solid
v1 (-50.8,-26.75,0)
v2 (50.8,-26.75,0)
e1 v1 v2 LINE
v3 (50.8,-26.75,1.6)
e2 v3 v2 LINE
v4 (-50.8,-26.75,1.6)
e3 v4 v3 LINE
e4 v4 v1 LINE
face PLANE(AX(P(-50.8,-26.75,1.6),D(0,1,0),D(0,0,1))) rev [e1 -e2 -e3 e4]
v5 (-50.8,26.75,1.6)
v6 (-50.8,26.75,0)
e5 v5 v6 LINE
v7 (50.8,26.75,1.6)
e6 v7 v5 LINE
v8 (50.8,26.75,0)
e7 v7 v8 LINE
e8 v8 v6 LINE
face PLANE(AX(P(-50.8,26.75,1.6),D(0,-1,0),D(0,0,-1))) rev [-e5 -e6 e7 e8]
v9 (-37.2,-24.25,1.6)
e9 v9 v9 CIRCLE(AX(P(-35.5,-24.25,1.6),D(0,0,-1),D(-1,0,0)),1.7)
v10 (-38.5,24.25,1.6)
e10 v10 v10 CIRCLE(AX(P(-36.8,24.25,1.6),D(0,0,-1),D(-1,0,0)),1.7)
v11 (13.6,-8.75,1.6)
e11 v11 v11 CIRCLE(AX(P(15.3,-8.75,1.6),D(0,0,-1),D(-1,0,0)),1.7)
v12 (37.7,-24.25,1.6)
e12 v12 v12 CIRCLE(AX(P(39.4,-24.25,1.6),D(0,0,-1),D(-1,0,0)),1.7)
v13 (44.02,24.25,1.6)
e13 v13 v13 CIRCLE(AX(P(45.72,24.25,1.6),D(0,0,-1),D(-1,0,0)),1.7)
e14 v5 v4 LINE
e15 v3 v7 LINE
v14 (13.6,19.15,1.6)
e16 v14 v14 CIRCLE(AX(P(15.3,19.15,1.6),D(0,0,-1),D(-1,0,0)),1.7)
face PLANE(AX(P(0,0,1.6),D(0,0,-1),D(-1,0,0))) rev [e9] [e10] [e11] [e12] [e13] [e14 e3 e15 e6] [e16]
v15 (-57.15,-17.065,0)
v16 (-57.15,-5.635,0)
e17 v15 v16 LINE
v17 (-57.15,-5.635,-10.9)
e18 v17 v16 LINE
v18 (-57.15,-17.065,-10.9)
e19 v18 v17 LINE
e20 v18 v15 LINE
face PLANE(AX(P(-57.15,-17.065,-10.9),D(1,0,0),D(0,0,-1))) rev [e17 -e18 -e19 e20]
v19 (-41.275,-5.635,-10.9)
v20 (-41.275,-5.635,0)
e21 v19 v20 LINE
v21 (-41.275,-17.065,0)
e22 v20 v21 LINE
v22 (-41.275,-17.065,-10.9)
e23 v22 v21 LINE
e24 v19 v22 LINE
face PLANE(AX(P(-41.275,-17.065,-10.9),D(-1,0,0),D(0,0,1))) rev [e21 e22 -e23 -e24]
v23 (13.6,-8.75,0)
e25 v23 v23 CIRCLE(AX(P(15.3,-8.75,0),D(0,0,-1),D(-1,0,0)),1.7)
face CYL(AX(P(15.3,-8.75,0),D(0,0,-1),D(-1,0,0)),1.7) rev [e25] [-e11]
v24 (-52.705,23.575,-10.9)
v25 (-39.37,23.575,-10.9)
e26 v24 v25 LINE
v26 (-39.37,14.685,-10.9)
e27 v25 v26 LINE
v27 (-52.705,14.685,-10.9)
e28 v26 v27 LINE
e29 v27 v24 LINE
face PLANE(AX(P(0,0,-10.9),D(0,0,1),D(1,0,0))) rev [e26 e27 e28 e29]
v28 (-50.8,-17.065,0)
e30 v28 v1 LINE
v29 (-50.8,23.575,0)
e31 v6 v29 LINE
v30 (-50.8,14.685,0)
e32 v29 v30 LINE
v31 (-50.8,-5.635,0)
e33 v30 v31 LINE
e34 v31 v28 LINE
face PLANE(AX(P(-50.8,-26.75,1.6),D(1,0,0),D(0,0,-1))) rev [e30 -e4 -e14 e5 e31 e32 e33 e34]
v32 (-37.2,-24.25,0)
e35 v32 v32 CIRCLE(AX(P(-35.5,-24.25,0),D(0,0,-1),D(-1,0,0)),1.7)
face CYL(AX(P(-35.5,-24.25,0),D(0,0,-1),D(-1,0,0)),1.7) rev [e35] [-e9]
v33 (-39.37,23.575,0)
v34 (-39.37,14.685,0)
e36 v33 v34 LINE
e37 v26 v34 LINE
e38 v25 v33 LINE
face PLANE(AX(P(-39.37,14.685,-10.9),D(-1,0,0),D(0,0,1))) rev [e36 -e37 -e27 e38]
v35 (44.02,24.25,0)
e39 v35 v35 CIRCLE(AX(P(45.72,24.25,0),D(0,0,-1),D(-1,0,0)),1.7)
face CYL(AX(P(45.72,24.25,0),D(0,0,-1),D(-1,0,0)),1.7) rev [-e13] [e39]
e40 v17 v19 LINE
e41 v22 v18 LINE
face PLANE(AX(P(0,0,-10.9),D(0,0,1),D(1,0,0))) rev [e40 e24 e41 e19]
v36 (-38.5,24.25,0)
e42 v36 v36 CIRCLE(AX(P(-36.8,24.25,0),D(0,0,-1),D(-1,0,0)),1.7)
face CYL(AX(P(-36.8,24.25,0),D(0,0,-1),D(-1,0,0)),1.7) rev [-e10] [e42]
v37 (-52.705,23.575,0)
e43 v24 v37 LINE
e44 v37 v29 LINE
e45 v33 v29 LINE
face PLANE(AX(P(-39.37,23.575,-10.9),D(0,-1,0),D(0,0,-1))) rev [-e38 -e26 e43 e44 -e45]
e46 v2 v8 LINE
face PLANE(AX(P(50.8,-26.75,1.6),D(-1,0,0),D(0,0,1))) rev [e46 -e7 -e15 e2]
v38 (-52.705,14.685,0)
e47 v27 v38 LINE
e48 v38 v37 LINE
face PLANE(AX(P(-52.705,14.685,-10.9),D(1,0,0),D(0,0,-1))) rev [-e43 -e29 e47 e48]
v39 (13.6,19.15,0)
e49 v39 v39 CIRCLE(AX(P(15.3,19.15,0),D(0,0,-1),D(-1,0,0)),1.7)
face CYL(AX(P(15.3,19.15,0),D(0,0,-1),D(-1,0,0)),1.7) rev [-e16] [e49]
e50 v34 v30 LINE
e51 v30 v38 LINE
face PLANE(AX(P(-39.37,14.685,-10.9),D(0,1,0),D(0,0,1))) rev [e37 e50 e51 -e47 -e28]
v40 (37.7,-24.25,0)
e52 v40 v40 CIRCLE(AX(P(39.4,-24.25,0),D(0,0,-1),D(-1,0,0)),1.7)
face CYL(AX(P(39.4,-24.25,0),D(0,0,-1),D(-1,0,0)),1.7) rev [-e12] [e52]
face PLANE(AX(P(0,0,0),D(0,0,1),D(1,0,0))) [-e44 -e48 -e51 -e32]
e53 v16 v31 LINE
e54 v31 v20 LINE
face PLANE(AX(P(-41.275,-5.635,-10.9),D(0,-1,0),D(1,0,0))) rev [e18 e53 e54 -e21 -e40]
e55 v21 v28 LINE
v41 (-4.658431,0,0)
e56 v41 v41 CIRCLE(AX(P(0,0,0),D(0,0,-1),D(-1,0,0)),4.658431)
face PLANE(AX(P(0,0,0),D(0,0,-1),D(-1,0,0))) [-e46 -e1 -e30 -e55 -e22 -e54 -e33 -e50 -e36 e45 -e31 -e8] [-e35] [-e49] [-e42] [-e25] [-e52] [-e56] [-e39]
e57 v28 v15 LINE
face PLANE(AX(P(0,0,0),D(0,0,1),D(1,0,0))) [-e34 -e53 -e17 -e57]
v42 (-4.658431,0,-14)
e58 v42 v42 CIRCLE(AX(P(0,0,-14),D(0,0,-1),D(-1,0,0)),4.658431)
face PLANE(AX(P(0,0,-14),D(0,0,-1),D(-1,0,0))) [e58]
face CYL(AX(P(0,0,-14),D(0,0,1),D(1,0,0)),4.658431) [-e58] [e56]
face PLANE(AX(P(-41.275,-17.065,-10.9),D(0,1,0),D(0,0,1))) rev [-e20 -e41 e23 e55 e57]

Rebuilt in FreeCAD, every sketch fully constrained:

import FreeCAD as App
import Part
import Sketcher

V = App.Vector

doc = App.newDocument("Part")
params = doc.addObject("Spreadsheet::Sheet", "Params")
for row, (alias, value) in enumerate([
    ("sketch1_width", "101.6 mm"),
    ("sketch1_height", "53.5 mm"),
    ("pad1_length", "1.6 mm"),
    ("sketch2_diameter", "3.4 mm"),
    ("hole_diameter", "3.4 mm"),
    ("sketch3_height", "11.43 mm"),
    ("pad2_length", "10.9 mm"),
    ("sketch4_height", "8.89 mm"),
    ("pad3_length", "10.9 mm"),
    ("pad4_length", "14 mm"),
], start=1):
    params.set(f"A{row}", alias)
    params.set(f"B{row}", "=" + value)
    params.setAlias(f"B{row}", alias)

body = doc.addObject("PartDesign::Body", "Body")

sketch1 = body.newObject("Sketcher::SketchObject", "Sketch")
sketch1.AttachmentSupport = (doc.getObject("XY_Plane"), [""])
sketch1.MapMode = "FlatFace"
sketch1.addGeometry(Part.LineSegment(V(-51, 27, 0), V(-51, -27, 0)), False)
sketch1.addGeometry(Part.LineSegment(V(-51, -27, 0), V(51, -27, 0)), False)
sketch1.addGeometry(Part.LineSegment(V(51, -27, 0), V(51, 27, 0)), False)
sketch1.addGeometry(Part.LineSegment(V(51, 27, 0), V(-51, 27, 0)), False)
sketch1.addConstraint(Sketcher.Constraint("Coincident", 0, 2, 1, 1))
sketch1.addConstraint(Sketcher.Constraint("Coincident", 1, 2, 2, 1))
sketch1.addConstraint(Sketcher.Constraint("Coincident", 2, 2, 3, 1))
sketch1.addConstraint(Sketcher.Constraint("Coincident", 3, 2, 0, 1))
sketch1.addConstraint(Sketcher.Constraint("Vertical", 0))
sketch1.addConstraint(Sketcher.Constraint("Horizontal", 1))
sketch1.addConstraint(Sketcher.Constraint("Vertical", 2))
sketch1.addConstraint(Sketcher.Constraint("Horizontal", 3))
sketch1.addConstraint(Sketcher.Constraint("Symmetric", 0, 2, 2, 2, -1, 1))
sketch1.addConstraint(Sketcher.Constraint("DistanceX", 1, 1, 1, 2, 101.6))
sketch1.addConstraint(Sketcher.Constraint("DistanceY", 0, 2, 0, 1, 53.5))
sketch1.setExpression("Constraints[9]", "Params.sketch1_width")
sketch1.setExpression("Constraints[10]", "Params.sketch1_height")
pad1 = body.newObject("PartDesign::Pad", "Pad")
pad1.Profile = sketch1
pad1.setExpression("Length", "Params.pad1_length")

sketch2 = body.newObject("Sketcher::SketchObject", "Sketch001")
sketch2.AttachmentSupport = (doc.getObject("XY_Plane"), [""])
sketch2.MapMode = "FlatFace"
sketch2.addGeometry(Part.Circle(V(15.3, 19.1, 0), V(0, 0, 1), 1.7), False)
sketch2.addGeometry(Part.Circle(V(45.7, 24.2, 0), V(0, 0, 1), 1.7), False)
sketch2.addGeometry(Part.Circle(V(15.3, -8.8, 0), V(0, 0, 1), 1.7), False)
sketch2.addGeometry(Part.Circle(V(39.4, -24.2, 0), V(0, 0, 1), 1.7), False)
sketch2.addGeometry(Part.Circle(V(-35.5, -24.2, 0), V(0, 0, 1), 1.7), False)
sketch2.addGeometry(Part.Circle(V(-36.8, 24.2, 0), V(0, 0, 1), 1.7), False)
sketch2.addConstraint(Sketcher.Constraint("Equal", 0, 1))
sketch2.addConstraint(Sketcher.Constraint("Equal", 1, 2))
sketch2.addConstraint(Sketcher.Constraint("Equal", 2, 3))
sketch2.addConstraint(Sketcher.Constraint("Equal", 3, 4))
sketch2.addConstraint(Sketcher.Constraint("Equal", 4, 5))
sketch2.addConstraint(Sketcher.Constraint("Horizontal", 3, 3, 4, 3))
sketch2.addConstraint(Sketcher.Constraint("Horizontal", 1, 3, 5, 3))
sketch2.addConstraint(Sketcher.Constraint("Vertical", 0, 3, 2, 3))
sketch2.addConstraint(Sketcher.Constraint("Diameter", 0, 3.4))
sketch2.addConstraint(Sketcher.Constraint("DistanceY", 2, 3, 1, 3, 33.0))
sketch2.addConstraint(Sketcher.Constraint("DistanceX", -1, 1, 0, 3, 15.3))
sketch2.addConstraint(Sketcher.Constraint("DistanceX", -1, 1, 3, 3, 39.4))
sketch2.addConstraint(Sketcher.Constraint("DistanceX", 4, 3, -1, 1, 35.5))
sketch2.addConstraint(Sketcher.Constraint("DistanceX", 5, 3, -1, 1, 36.8))
sketch2.addConstraint(Sketcher.Constraint("DistanceY", 0, 3, 1, 3, 5.1))
sketch2.addConstraint(Sketcher.Constraint("DistanceY", 3, 3, 2, 3, 15.5))
sketch2.addConstraint(Sketcher.Constraint("DistanceY", -1, 1, 0, 3, 19.15))
sketch2.addConstraint(Sketcher.Constraint("DistanceX", -1, 1, 1, 3, 45.72))
sketch2.setExpression("Constraints[8]", "Params.sketch2_diameter")
doc.recompute()
hole = body.newObject("PartDesign::Hole", "Hole")
hole.Profile = sketch2
hole.ThreadType = "None"
hole.setExpression("Diameter", "Params.hole_diameter")
hole.DepthType = "ThroughAll"
hole.Reversed = True

sketch3 = body.newObject("Sketcher::SketchObject", "Sketch002")
sketch3.AttachmentSupport = (doc.getObject("XY_Plane"), [""])
sketch3.MapMode = "FlatFace"
sketch3.addGeometry(Part.LineSegment(V(-41, -6, 0), V(-41, -17, 0)), False)
sketch3.addGeometry(Part.LineSegment(V(-41, -17, 0), V(-57, -17, 0)), False)
sketch3.addGeometry(Part.LineSegment(V(-57, -17, 0), V(-57, -6, 0)), False)
sketch3.addGeometry(Part.LineSegment(V(-57, -6, 0), V(-41, -6, 0)), False)
sketch3.addConstraint(Sketcher.Constraint("Coincident", 0, 2, 1, 1))
sketch3.addConstraint(Sketcher.Constraint("Coincident", 1, 2, 2, 1))
sketch3.addConstraint(Sketcher.Constraint("Coincident", 2, 2, 3, 1))
sketch3.addConstraint(Sketcher.Constraint("Coincident", 3, 2, 0, 1))
sketch3.addConstraint(Sketcher.Constraint("Vertical", 0))
sketch3.addConstraint(Sketcher.Constraint("Horizontal", 1))
sketch3.addConstraint(Sketcher.Constraint("Vertical", 2))
sketch3.addConstraint(Sketcher.Constraint("Horizontal", 3))
sketch3.addConstraint(Sketcher.Constraint("DistanceY", 0, 2, 0, 1, 11.43))
sketch3.addConstraint(Sketcher.Constraint("DistanceX", 1, 2, 1, 1, 15.875))
sketch3.addConstraint(Sketcher.Constraint("DistanceX", 1, 2, -1, 1, 57.15))
sketch3.addConstraint(Sketcher.Constraint("DistanceY", 0, 2, -1, 1, 17.065))
sketch3.setExpression("Constraints[8]", "Params.sketch3_height")
pad2 = body.newObject("PartDesign::Pad", "Pad001")
pad2.Profile = sketch3
pad2.setExpression("Length", "Params.pad2_length")
pad2.Reversed = True

sketch4 = body.newObject("Sketcher::SketchObject", "Sketch003")
sketch4.AttachmentSupport = (doc.getObject("XY_Plane"), [""])
sketch4.MapMode = "FlatFace"
sketch4.addGeometry(Part.LineSegment(V(-39, 24, 0), V(-39, 15, 0)), False)
sketch4.addGeometry(Part.LineSegment(V(-39, 15, 0), V(-53, 15, 0)), False)
sketch4.addGeometry(Part.LineSegment(V(-53, 15, 0), V(-53, 24, 0)), False)
sketch4.addGeometry(Part.LineSegment(V(-53, 24, 0), V(-39, 24, 0)), False)
sketch4.addConstraint(Sketcher.Constraint("Coincident", 0, 2, 1, 1))
sketch4.addConstraint(Sketcher.Constraint("Coincident", 1, 2, 2, 1))
sketch4.addConstraint(Sketcher.Constraint("Coincident", 2, 2, 3, 1))
sketch4.addConstraint(Sketcher.Constraint("Coincident", 3, 2, 0, 1))
sketch4.addConstraint(Sketcher.Constraint("Vertical", 0))
sketch4.addConstraint(Sketcher.Constraint("Horizontal", 1))
sketch4.addConstraint(Sketcher.Constraint("Vertical", 2))
sketch4.addConstraint(Sketcher.Constraint("Horizontal", 3))
sketch4.addConstraint(Sketcher.Constraint("DistanceY", 0, 2, 0, 1, 8.89))
sketch4.addConstraint(Sketcher.Constraint("DistanceX", 1, 2, 1, 1, 13.335))
sketch4.addConstraint(Sketcher.Constraint("DistanceX", 0, 2, -1, 1, 39.37))
sketch4.addConstraint(Sketcher.Constraint("DistanceY", -1, 1, 0, 2, 14.685))
sketch4.setExpression("Constraints[8]", "Params.sketch4_height")
pad3 = body.newObject("PartDesign::Pad", "Pad002")
pad3.Profile = sketch4
pad3.setExpression("Length", "Params.pad3_length")
pad3.Reversed = True

sketch5 = body.newObject("Sketcher::SketchObject", "Sketch004")
sketch5.AttachmentSupport = (doc.getObject("XY_Plane"), [""])
sketch5.MapMode = "FlatFace"
sketch5.addGeometry(Part.Circle(V(0, 0, 0), V(0, 0, 1), 4.7), False)
sketch5.addConstraint(Sketcher.Constraint("Coincident", 0, 3, -1, 1))
sketch5.addConstraint(Sketcher.Constraint("Diameter", 0, 9.316862))
pad4 = body.newObject("PartDesign::Pad", "Pad003")
pad4.Profile = sketch5
pad4.setExpression("Length", "Params.pad4_length")
pad4.Reversed = True

doc.recompute()
